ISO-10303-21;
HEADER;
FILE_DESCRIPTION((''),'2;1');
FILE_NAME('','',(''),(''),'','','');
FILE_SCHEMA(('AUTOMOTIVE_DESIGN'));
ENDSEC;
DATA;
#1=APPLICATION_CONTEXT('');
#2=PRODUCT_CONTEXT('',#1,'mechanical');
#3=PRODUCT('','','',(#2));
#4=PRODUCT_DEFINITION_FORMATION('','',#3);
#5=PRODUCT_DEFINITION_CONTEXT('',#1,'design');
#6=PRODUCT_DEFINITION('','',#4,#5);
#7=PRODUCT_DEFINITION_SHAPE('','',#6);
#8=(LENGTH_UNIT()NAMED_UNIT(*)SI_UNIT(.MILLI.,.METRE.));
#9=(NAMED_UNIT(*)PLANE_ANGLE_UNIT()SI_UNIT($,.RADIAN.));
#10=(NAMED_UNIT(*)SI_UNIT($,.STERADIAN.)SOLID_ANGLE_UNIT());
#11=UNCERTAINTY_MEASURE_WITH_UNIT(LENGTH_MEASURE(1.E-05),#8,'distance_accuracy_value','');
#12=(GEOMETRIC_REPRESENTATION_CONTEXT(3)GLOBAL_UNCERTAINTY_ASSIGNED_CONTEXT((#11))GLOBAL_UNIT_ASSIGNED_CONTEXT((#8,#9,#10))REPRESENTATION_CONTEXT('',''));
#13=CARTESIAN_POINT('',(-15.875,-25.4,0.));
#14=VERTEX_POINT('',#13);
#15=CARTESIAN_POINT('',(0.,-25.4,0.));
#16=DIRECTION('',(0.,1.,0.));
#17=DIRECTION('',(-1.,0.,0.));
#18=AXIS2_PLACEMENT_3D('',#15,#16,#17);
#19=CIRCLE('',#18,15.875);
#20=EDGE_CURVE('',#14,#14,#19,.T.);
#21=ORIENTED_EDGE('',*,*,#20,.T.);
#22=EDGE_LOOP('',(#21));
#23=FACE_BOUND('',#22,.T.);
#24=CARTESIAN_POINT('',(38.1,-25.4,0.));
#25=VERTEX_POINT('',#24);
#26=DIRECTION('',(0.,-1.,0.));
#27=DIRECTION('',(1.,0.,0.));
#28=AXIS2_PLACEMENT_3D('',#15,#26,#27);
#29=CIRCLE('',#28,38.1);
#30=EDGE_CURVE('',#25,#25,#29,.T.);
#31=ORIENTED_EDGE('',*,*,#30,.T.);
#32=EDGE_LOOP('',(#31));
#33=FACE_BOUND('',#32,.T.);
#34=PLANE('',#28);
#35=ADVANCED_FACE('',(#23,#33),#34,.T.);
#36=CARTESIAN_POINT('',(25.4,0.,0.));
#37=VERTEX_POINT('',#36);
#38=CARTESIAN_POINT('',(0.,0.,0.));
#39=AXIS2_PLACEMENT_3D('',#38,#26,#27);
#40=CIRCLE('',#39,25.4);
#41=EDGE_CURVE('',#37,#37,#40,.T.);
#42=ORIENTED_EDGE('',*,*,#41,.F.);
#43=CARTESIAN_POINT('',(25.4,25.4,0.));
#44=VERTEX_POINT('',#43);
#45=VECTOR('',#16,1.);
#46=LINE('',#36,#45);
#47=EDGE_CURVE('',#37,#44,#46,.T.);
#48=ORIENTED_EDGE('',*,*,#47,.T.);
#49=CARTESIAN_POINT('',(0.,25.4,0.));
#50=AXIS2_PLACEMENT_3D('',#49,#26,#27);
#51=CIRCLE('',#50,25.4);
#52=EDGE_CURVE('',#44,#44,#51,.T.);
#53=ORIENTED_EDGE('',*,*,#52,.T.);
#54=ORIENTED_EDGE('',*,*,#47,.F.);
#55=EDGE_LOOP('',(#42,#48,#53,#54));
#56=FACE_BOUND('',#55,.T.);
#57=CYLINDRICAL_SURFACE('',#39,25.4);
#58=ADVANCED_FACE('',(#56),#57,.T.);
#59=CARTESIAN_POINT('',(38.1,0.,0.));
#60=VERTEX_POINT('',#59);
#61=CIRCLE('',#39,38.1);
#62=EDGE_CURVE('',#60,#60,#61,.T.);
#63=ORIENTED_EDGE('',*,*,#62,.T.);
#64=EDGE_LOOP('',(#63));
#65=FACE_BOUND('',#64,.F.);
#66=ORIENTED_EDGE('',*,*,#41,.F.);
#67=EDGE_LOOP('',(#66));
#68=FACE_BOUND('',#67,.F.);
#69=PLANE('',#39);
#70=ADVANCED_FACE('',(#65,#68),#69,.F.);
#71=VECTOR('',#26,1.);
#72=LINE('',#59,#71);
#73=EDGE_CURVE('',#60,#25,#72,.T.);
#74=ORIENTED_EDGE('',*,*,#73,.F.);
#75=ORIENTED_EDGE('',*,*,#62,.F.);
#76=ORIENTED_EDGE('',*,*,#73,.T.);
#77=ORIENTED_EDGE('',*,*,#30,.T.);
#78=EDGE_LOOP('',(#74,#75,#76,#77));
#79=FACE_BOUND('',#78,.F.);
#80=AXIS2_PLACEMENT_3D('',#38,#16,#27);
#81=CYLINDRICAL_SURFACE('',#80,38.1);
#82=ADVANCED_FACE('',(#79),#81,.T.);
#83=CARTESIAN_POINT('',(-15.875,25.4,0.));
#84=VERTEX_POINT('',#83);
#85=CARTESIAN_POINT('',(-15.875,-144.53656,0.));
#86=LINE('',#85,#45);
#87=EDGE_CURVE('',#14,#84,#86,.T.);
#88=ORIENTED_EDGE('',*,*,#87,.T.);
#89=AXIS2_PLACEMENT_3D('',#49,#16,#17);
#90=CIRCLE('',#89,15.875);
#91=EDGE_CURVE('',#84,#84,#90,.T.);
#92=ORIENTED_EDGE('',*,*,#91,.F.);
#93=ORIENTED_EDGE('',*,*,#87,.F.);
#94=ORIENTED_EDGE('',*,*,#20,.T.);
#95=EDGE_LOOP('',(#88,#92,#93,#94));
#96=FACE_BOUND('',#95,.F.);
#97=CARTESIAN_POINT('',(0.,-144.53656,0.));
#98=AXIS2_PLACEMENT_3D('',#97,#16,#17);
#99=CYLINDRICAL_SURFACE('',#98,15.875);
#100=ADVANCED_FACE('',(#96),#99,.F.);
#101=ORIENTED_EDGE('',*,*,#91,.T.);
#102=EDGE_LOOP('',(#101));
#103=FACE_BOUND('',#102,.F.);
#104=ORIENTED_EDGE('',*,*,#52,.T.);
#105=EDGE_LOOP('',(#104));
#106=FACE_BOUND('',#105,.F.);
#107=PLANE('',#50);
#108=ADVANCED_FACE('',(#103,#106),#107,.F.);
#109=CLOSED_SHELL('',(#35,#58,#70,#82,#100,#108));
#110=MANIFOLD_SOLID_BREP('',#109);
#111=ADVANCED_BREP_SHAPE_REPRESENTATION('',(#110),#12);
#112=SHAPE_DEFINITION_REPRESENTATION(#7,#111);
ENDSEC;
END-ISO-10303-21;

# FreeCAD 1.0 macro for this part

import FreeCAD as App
import Part
import Sketcher
from FreeCAD import Vector
Q = App.Units.Quantity

doc = App.newDocument("Part")
body = doc.addObject("PartDesign::Body", "Body")

sketch1 = body.newObject("Sketcher::SketchObject", "Sketch")
sketch1.AttachmentSupport = (doc.getObject("XZ_Plane"), [""])
sketch1.MapMode = "FlatFace"
sketch1.addGeometry(Part.Circle(Vector(0, 0, 0), Vector(0, 0, 1), 38.1), False)
sketch1.addConstraint([
    Sketcher.Constraint("Coincident", 0, 3, -1, 1),
    Sketcher.Constraint("Diameter", 0, Q("3 in")),
])
pad1 = body.newObject("PartDesign::Pad", "Pad")
pad1.Profile = sketch1
pad1.Length = Q("1 in")

sketch2 = body.newObject("Sketcher::SketchObject", "Sketch001")
sketch2.AttachmentSupport = (doc.getObject("XZ_Plane"), [""])
sketch2.MapMode = "FlatFace"
sketch2.addGeometry(Part.Circle(Vector(0, 0, 0), Vector(0, 0, 1), 25.4), False)
sketch2.addConstraint([
    Sketcher.Constraint("Coincident", 0, 3, -1, 1),
    Sketcher.Constraint("Diameter", 0, Q("2 in")),
])
pad2 = body.newObject("PartDesign::Pad", "Pad001")
pad2.Profile = sketch2
pad2.Length = Q("1 in")
pad2.Reversed = True

sketch3 = body.newObject("Sketcher::SketchObject", "Sketch002")
sketch3.AttachmentSupport = (doc.getObject("XZ_Plane"), [""])
sketch3.MapMode = "FlatFace"
sketch3.AttachmentOffset = App.Placement(Vector(0, 0, 1 * 25.4), App.Rotation())
sketch3.addGeometry([
    Part.Circle(Vector(0, 0, 0), Vector(0, 0, 1), 15.875),
    Part.Circle(Vector(0, 0, 0), Vector(0, 0, 1), 15.875),
    Part.Circle(Vector(0, 0, 0), Vector(0, 0, 1), 15.875),
    Part.Circle(Vector(0, 0, 0), Vector(0, 0, 1), 15.875),
], False)
sketch3.addConstraint([
    Sketcher.Constraint("Coincident", 0, 3, -1, 1),
    Sketcher.Constraint("Coincident", 1, 3, -1, 1),
    Sketcher.Constraint("Coincident", 2, 3, -1, 1),
    Sketcher.Constraint("Coincident", 3, 3, -1, 1),
    Sketcher.Constraint("Equal", 0, 1),
    Sketcher.Constraint("Equal", 1, 2),
    Sketcher.Constraint("Equal", 2, 3),
    Sketcher.Constraint("Diameter", 0, Q("1.25 in")),
])
doc.recompute()
hole = body.newObject("PartDesign::Hole", "Hole")
hole.Profile = sketch3
hole.ThreadType = "None"
hole.Diameter = Q("1.25 in")
hole.DepthType = "ThroughAll"

doc.recompute()
